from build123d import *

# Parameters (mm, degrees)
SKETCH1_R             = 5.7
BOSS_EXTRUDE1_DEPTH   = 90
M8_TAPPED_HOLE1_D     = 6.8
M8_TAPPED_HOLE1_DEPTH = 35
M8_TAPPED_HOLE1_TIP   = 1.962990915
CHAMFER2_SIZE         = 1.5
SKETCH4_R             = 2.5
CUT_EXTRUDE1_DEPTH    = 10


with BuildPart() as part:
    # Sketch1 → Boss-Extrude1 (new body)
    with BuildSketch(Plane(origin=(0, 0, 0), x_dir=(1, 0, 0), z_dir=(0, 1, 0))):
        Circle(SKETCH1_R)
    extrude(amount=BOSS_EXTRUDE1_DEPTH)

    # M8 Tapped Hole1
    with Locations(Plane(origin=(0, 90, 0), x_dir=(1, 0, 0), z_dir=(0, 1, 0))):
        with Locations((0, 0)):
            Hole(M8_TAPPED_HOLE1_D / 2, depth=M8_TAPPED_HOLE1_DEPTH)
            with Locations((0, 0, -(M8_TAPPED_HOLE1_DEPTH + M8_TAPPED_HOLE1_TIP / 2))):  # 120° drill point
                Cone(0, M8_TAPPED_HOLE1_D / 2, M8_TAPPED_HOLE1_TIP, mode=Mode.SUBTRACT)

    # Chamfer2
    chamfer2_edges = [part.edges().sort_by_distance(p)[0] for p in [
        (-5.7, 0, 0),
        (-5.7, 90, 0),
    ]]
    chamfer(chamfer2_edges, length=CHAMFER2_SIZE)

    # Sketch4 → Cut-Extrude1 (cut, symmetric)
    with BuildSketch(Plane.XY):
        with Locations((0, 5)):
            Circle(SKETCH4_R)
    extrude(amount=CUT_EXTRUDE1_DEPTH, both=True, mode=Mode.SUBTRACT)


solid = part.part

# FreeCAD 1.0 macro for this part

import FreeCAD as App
import Part
import Sketcher
from FreeCAD import Vector


def edges_at(feature, points):
    """Names of the edges that pass closest to the given points."""
    edges = feature.Shape.Edges
    near = lambda p: min(range(len(edges)), key=lambda i: edges[i].distToShape(Part.Vertex(*p))[0])
    return sorted({f"Edge{near(p) + 1}" for p in points})

doc = App.newDocument("Part")
body = doc.addObject("PartDesign::Body", "Body")

# Sketch on XZ plane
sketch1 = body.newObject("Sketcher::SketchObject", "Sketch")
sketch1.AttachmentSupport = (doc.getObject("XZ_Plane"), [""])
sketch1.MapMode = "FlatFace"
sketch1.addGeometry(Part.Circle(Vector(0, 0, 0), Vector(0, 0, 1), 6), False)
sketch1.addConstraint(Sketcher.Constraint("Coincident", 0, 3, -1, 1))
sketch1.addConstraint(Sketcher.Constraint("Diameter", 0, 11.4))
pad1 = body.newObject("PartDesign::Pad", "Pad")
pad1.Profile = sketch1
pad1.Length = 90
pad1.Reversed = True

# Sketch on XZ plane
sketch2 = body.newObject("Sketcher::SketchObject", "Sketch001")
sketch2.AttachmentSupport = (doc.getObject("XZ_Plane"), [""])
sketch2.MapMode = "FlatFace"
sketch2.AttachmentOffset = App.Placement(Vector(0, 0, -90), App.Rotation())
sketch2.addGeometry(Part.Circle(Vector(0, 0, 0), Vector(0, 0, 1), 3.4), False)
sketch2.addConstraint(Sketcher.Constraint("Coincident", 0, 3, -1, 1))
sketch2.addConstraint(Sketcher.Constraint("Diameter", 0, 6.8))
doc.recompute()
hole = body.newObject("PartDesign::Hole", "Hole")
hole.Profile = sketch2
hole.ThreadType = "None"
hole.Diameter = 6.8
hole.DepthType = "Dimension"
hole.Depth = 35
hole.DrillPoint = "Angled"
hole.DrillPointAngle = 120
hole.Reversed = True
doc.recompute()

chamfer = body.newObject("PartDesign::Chamfer", "Chamfer")
chamfer.Base = (hole, edges_at(hole, [(-5.7, 0, 0), (-5.7, 90, 0)]))
chamfer.Size = 1.5

# Sketch on XY plane
sketch3 = body.newObject("Sketcher::SketchObject", "Sketch002")
sketch3.AttachmentSupport = (doc.getObject("XY_Plane"), [""])
sketch3.MapMode = "FlatFace"
sketch3.addGeometry(Part.Circle(Vector(0, 5, 0), Vector(0, 0, 1), 2.5), False)
sketch3.addConstraint(Sketcher.Constraint("PointOnObject", 0, 3, -2))
sketch3.addConstraint(Sketcher.Constraint("Diameter", 0, 5.0))
sketch3.addConstraint(Sketcher.Constraint("DistanceY", -1, 1, 0, 3, 5.0))
pocket1 = body.newObject("PartDesign::Pocket", "Pocket")
pocket1.Profile = sketch3
pocket1.Length = 20
pocket1.Midplane = True

doc.recompute()
